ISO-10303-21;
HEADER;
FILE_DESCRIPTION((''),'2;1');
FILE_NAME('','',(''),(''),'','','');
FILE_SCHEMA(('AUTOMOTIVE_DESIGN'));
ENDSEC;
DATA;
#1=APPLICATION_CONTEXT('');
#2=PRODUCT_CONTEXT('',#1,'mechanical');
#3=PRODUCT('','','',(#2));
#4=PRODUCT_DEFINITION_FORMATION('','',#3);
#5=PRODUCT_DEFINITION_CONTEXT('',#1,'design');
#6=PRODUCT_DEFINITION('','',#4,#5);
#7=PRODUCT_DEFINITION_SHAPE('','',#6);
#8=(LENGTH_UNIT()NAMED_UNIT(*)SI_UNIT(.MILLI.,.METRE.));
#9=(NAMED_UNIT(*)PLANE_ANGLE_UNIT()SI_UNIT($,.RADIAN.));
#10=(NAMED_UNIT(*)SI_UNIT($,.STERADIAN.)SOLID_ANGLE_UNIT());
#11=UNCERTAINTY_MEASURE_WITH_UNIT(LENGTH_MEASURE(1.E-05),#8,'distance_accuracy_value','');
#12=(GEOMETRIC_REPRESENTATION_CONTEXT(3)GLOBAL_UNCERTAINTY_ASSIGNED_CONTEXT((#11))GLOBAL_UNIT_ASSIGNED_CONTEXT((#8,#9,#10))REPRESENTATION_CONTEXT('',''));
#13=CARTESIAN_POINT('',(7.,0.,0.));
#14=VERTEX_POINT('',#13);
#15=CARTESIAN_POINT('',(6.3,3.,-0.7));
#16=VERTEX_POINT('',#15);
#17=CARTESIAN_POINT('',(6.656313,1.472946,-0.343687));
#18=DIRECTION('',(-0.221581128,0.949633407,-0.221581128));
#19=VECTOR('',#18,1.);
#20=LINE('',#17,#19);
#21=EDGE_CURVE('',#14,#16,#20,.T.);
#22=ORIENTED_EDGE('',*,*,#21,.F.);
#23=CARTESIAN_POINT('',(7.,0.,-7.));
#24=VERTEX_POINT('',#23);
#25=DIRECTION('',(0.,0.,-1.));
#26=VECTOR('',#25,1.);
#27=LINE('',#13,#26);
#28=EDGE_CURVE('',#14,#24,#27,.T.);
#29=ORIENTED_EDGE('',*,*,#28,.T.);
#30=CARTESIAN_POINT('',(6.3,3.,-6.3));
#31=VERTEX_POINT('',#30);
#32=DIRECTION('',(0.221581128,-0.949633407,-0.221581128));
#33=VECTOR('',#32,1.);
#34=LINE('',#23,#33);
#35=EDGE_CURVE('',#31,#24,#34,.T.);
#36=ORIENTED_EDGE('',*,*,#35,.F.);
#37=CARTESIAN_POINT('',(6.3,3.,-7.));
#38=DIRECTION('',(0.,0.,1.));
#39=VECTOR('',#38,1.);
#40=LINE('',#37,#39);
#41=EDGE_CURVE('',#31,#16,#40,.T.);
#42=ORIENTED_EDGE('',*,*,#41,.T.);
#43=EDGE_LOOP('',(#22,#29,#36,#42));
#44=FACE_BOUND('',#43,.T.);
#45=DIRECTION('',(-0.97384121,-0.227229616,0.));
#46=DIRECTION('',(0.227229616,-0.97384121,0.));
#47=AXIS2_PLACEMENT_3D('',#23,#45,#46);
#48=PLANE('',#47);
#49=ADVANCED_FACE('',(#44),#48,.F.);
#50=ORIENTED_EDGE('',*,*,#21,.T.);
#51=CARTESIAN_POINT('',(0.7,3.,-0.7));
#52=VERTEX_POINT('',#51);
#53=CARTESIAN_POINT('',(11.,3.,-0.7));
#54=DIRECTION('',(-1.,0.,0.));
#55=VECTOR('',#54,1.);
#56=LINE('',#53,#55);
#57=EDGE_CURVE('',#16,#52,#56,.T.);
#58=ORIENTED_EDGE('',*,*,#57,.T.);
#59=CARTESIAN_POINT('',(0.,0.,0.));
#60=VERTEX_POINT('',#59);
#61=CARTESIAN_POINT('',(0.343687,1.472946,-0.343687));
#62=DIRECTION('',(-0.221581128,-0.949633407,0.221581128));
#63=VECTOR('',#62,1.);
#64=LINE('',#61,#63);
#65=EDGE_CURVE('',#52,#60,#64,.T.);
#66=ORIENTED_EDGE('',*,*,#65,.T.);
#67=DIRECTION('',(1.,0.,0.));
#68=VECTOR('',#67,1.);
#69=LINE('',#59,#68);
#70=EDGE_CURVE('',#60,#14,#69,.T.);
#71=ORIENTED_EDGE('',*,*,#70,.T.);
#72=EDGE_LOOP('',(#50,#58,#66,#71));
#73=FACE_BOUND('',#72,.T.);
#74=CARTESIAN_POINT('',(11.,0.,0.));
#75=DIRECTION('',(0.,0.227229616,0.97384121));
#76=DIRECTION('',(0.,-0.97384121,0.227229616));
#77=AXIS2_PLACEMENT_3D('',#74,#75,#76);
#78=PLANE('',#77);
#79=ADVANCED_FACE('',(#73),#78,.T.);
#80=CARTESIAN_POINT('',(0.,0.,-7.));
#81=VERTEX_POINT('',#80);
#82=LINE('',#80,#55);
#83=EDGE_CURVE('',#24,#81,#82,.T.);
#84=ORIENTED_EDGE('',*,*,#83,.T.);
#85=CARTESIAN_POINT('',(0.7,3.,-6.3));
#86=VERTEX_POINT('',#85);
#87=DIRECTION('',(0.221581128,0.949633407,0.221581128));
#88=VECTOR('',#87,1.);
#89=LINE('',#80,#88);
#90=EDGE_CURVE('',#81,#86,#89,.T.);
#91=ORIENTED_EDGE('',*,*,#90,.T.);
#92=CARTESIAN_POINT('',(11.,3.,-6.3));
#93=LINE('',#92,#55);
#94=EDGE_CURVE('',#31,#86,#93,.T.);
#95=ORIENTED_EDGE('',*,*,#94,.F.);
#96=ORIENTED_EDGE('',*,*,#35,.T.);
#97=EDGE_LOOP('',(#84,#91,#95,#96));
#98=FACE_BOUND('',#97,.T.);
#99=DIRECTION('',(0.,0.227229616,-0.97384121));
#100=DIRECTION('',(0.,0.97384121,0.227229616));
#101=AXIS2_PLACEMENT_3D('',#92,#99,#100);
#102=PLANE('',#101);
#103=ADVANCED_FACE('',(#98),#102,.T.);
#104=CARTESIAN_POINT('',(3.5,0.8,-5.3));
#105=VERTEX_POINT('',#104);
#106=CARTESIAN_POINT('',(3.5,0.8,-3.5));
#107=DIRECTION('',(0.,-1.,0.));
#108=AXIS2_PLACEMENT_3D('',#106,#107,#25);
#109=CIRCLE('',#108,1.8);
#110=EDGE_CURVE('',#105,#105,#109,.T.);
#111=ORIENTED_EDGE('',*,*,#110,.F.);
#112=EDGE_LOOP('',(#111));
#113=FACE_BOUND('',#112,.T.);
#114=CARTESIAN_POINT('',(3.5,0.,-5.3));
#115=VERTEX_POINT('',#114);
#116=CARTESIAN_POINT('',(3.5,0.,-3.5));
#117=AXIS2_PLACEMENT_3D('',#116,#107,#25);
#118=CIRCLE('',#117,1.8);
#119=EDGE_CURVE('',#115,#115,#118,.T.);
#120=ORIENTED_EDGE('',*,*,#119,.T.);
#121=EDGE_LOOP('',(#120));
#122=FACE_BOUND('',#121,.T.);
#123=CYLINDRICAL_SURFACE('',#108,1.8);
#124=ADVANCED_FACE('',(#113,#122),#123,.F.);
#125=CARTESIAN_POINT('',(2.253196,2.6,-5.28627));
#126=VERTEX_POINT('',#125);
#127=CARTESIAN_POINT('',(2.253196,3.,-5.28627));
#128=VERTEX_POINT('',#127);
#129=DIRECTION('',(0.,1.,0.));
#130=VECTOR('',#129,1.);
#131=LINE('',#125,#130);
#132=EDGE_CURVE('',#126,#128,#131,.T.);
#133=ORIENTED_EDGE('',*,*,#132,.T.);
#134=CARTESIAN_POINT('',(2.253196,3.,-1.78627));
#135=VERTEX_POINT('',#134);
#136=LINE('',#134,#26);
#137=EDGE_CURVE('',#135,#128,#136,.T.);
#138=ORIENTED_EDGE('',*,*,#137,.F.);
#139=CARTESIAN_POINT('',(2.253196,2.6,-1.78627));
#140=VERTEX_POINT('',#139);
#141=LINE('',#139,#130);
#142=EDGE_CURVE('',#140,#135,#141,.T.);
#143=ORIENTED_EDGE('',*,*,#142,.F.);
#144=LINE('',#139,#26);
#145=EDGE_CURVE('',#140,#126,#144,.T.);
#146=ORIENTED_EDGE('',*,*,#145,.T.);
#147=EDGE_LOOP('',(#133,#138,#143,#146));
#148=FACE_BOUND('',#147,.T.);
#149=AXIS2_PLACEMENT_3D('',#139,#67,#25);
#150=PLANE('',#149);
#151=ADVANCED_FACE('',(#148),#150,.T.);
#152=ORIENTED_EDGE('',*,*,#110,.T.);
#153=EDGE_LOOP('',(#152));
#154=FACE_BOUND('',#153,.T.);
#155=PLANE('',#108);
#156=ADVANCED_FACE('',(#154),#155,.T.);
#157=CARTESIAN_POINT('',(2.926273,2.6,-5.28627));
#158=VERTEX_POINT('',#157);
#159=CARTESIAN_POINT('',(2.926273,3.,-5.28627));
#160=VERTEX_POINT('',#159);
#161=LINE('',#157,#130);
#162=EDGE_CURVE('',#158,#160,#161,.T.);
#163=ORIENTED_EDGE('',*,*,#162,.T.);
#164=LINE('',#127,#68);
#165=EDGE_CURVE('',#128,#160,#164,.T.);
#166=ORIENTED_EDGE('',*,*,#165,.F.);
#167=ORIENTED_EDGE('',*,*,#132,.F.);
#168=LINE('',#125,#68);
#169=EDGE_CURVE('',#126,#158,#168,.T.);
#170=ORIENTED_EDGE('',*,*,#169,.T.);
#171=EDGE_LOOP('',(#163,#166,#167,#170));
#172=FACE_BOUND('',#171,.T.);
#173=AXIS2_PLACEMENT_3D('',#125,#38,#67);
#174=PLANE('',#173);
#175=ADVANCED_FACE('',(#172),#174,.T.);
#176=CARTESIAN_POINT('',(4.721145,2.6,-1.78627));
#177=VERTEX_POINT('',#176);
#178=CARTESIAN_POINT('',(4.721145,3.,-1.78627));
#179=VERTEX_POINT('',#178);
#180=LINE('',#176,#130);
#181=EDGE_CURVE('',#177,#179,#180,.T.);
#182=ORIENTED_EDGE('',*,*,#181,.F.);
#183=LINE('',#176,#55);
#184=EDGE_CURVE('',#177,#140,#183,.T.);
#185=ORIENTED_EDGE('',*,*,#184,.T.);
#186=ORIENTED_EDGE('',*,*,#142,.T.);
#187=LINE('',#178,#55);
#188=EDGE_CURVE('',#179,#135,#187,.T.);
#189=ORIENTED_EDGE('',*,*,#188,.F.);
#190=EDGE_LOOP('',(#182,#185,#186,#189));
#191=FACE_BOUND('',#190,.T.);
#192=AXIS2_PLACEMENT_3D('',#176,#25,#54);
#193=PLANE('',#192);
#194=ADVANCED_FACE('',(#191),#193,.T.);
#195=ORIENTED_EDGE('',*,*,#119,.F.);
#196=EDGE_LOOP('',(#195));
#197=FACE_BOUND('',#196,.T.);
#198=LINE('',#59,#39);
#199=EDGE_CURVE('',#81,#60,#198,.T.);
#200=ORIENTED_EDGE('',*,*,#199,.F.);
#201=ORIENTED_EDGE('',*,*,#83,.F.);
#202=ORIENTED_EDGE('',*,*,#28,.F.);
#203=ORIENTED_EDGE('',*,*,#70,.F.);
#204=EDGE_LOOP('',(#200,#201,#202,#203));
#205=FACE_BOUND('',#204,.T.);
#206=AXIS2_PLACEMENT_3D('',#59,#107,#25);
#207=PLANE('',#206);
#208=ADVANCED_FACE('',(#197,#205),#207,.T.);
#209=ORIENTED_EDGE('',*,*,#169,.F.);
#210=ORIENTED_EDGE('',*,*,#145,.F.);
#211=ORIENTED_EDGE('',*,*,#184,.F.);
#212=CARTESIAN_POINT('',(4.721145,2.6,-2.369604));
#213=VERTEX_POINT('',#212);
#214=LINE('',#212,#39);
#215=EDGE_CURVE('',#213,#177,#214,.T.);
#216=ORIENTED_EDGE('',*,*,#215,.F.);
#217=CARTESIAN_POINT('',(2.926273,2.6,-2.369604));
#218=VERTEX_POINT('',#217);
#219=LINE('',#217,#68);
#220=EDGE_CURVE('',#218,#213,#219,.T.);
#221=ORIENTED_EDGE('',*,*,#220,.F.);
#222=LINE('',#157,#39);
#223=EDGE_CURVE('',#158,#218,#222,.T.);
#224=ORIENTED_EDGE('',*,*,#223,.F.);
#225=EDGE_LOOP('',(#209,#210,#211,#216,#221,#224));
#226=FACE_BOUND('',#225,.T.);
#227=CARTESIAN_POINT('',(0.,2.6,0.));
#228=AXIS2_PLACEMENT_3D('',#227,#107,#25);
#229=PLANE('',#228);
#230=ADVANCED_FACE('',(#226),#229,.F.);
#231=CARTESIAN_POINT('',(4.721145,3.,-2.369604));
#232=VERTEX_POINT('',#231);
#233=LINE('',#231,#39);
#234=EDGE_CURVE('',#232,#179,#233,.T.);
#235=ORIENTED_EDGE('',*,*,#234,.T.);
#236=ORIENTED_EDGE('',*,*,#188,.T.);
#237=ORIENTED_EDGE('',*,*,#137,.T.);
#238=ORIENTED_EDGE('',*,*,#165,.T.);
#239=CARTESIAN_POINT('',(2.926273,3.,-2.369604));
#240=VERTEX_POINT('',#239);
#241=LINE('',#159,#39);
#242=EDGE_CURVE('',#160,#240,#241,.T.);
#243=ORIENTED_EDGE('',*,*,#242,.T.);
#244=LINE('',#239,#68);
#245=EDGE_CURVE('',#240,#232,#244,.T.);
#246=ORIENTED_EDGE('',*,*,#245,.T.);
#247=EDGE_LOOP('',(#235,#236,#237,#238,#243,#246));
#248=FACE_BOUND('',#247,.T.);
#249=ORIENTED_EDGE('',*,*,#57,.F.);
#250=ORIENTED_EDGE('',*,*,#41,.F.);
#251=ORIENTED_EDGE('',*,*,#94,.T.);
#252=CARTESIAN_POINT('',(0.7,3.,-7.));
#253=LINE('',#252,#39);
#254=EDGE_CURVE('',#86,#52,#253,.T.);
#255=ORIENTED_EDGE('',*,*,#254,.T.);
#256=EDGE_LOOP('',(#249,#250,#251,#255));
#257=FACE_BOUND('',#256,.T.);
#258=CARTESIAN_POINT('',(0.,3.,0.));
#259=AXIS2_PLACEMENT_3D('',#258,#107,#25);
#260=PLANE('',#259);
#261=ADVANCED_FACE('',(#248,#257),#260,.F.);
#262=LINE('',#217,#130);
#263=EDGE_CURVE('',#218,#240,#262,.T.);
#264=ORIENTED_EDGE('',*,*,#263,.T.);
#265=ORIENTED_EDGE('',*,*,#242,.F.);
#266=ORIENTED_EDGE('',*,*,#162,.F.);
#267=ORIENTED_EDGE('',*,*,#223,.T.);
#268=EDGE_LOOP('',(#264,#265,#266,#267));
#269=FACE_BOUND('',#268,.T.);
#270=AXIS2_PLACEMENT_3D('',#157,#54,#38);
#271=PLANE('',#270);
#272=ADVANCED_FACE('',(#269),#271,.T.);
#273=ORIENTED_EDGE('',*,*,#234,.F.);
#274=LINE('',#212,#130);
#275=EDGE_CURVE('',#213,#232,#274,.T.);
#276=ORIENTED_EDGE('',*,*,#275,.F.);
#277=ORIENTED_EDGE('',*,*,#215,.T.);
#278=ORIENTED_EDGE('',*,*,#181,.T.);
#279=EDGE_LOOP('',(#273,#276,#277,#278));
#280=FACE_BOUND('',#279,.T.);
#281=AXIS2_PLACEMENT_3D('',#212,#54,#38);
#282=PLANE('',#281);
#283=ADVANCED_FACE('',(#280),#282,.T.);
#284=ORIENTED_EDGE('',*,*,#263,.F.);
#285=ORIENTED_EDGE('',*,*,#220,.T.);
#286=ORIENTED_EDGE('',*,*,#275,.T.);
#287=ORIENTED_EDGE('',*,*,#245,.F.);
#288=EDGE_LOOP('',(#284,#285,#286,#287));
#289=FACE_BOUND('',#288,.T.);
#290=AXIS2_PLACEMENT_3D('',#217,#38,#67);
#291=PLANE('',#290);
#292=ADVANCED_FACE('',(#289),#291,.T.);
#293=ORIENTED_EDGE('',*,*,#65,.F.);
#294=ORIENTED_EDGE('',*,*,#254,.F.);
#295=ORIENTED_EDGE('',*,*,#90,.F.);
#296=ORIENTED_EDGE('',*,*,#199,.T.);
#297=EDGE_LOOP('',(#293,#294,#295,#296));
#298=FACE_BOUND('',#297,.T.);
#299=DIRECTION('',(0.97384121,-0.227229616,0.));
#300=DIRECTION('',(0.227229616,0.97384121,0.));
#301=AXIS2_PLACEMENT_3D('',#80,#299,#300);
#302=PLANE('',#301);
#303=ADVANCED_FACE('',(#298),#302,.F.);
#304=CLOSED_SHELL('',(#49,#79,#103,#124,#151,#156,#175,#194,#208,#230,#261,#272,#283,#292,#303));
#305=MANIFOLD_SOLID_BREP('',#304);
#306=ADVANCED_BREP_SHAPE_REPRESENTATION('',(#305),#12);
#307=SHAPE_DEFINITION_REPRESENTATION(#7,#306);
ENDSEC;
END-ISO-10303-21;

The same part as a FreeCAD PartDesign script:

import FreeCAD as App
import Part
import Sketcher

doc = App.newDocument("Part")
body = doc.addObject("PartDesign::Body", "Body")

# Sketch on XZ plane
sketch1 = body.newObject("Sketcher::SketchObject", "Sketch")
sketch1.AttachmentSupport = (doc.getObject("XZ_Plane"), [""])
sketch1.MapMode = "FlatFace"
sketch1.addGeometry(Part.LineSegment(App.Vector(0, -7, 0), App.Vector(0, 0, 0)), False)
sketch1.addGeometry(Part.LineSegment(App.Vector(0, 0, 0), App.Vector(7, 0, 0)), False)
sketch1.addGeometry(Part.LineSegment(App.Vector(7, 0, 0), App.Vector(7, -7, 0)), False)
sketch1.addGeometry(Part.LineSegment(App.Vector(7, -7, 0), App.Vector(0, -7, 0)), False)
sketch1.addConstraint(Sketcher.Constraint("Coincident", 0, 2, 1, 1))
sketch1.addConstraint(Sketcher.Constraint("Coincident", 1, 2, 2, 1))
sketch1.addConstraint(Sketcher.Constraint("Coincident", 2, 2, 3, 1))
sketch1.addConstraint(Sketcher.Constraint("Coincident", 3, 2, 0, 1))
sketch1.addConstraint(Sketcher.Constraint("Vertical", 0))
sketch1.addConstraint(Sketcher.Constraint("Horizontal", 1))
sketch1.addConstraint(Sketcher.Constraint("Vertical", 2))
sketch1.addConstraint(Sketcher.Constraint("Horizontal", 3))
sketch1.addConstraint(Sketcher.Constraint("Coincident", 0, 2, -1, 1))
sketch1.addConstraint(Sketcher.Constraint("Equal", 3, 0))
sketch1.addConstraint(Sketcher.Constraint("DistanceX", 1, 1, 1, 2, 7.0))
pad1 = body.newObject("PartDesign::Pad", "Pad")
pad1.Profile = sketch1
pad1.Length = 3
pad1.Reversed = True

# Sketch on XY plane
sketch2 = body.newObject("Sketcher::SketchObject", "Sketch001")
sketch2.AttachmentSupport = (doc.getObject("XY_Plane"), [""])
sketch2.MapMode = "FlatFace"
sketch2.addGeometry(Part.LineSegment(App.Vector(0, 0, 0), App.Vector(0.7, 3, 0)), False)
sketch2.addGeometry(Part.LineSegment(App.Vector(0.7, 3, 0), App.Vector(0, 3, 0)), False)
sketch2.addGeometry(Part.LineSegment(App.Vector(0, 3, 0), App.Vector(0, 0, 0)), False)
sketch2.addGeometry(Part.LineSegment(App.Vector(6.3, 3, 0), App.Vector(7, 0, 0)), False)
sketch2.addGeometry(Part.LineSegment(App.Vector(7, 0, 0), App.Vector(7, 3, 0)), False)
sketch2.addGeometry(Part.LineSegment(App.Vector(7, 3, 0), App.Vector(6.3, 3, 0)), False)
sketch2.addConstraint(Sketcher.Constraint("Coincident", 0, 2, 1, 1))
sketch2.addConstraint(Sketcher.Constraint("Coincident", 1, 2, 2, 1))
sketch2.addConstraint(Sketcher.Constraint("Coincident", 2, 2, 0, 1))
sketch2.addConstraint(Sketcher.Constraint("Coincident", 3, 2, 4, 1))
sketch2.addConstraint(Sketcher.Constraint("Coincident", 4, 2, 5, 1))
sketch2.addConstraint(Sketcher.Constraint("Coincident", 5, 2, 3, 1))
sketch2.addConstraint(Sketcher.Constraint("Horizontal", 1))
sketch2.addConstraint(Sketcher.Constraint("Vertical", 2))
sketch2.addConstraint(Sketcher.Constraint("Vertical", 4))
sketch2.addConstraint(Sketcher.Constraint("Horizontal", 5))
sketch2.addConstraint(Sketcher.Constraint("Coincident", 2, 2, -1, 1))
sketch2.addConstraint(Sketcher.Constraint("PointOnObject", 3, 2, -1))
sketch2.addConstraint(Sketcher.Constraint("Horizontal", 1, 2, 4, 2))
sketch2.addConstraint(Sketcher.Constraint("Equal", 1, 5))
sketch2.addConstraint(Sketcher.Constraint("DistanceY", 2, 2, 2, 1, 3.0))
sketch2.addConstraint(Sketcher.Constraint("DistanceX", 1, 2, 1, 1, 0.7))
sketch2.addConstraint(Sketcher.Constraint("DistanceX", -1, 1, 3, 2, 7.0))
pocket1 = body.newObject("PartDesign::Pocket", "Pocket")
pocket1.Profile = sketch2
pocket1.Length = 7

# Sketch on YZ plane
sketch3 = body.newObject("Sketcher::SketchObject", "Sketch002")
sketch3.AttachmentSupport = (doc.getObject("YZ_Plane"), [""])
sketch3.MapMode = "FlatFace"
sketch3.addGeometry(Part.LineSegment(App.Vector(0, 0, 0), App.Vector(3, -0.7, 0)), False)
sketch3.addGeometry(Part.LineSegment(App.Vector(3, -0.7, 0), App.Vector(3, 0, 0)), False)
sketch3.addGeometry(Part.LineSegment(App.Vector(3, 0, 0), App.Vector(0, 0, 0)), False)
sketch3.addGeometry(Part.LineSegment(App.Vector(3, -7, 0), App.Vector(3, -6.3, 0)), False)
sketch3.addGeometry(Part.LineSegment(App.Vector(3, -6.3, 0), App.Vector(0, -7, 0)), False)
sketch3.addGeometry(Part.LineSegment(App.Vector(0, -7, 0), App.Vector(3, -7, 0)), False)
sketch3.addConstraint(Sketcher.Constraint("Coincident", 0, 2, 1, 1))
sketch3.addConstraint(Sketcher.Constraint("Coincident", 1, 2, 2, 1))
sketch3.addConstraint(Sketcher.Constraint("Coincident", 2, 2, 0, 1))
sketch3.addConstraint(Sketcher.Constraint("Coincident", 3, 2, 4, 1))
sketch3.addConstraint(Sketcher.Constraint("Coincident", 4, 2, 5, 1))
sketch3.addConstraint(Sketcher.Constraint("Coincident", 5, 2, 3, 1))
sketch3.addConstraint(Sketcher.Constraint("Vertical", 1))
sketch3.addConstraint(Sketcher.Constraint("Horizontal", 2))
sketch3.addConstraint(Sketcher.Constraint("Vertical", 3))
sketch3.addConstraint(Sketcher.Constraint("Horizontal", 5))
sketch3.addConstraint(Sketcher.Constraint("Coincident", 2, 2, -1, 1))
sketch3.addConstraint(Sketcher.Constraint("PointOnObject", 4, 2, -2))
sketch3.addConstraint(Sketcher.Constraint("Vertical", 1, 2, 3, 2))
sketch3.addConstraint(Sketcher.Constraint("Equal", 1, 3))
sketch3.addConstraint(Sketcher.Constraint("DistanceX", 2, 2, 2, 1, 3.0))
sketch3.addConstraint(Sketcher.Constraint("DistanceY", 1, 1, 1, 2, 0.7))
sketch3.addConstraint(Sketcher.Constraint("DistanceY", 4, 2, -1, 1, 7.0))
pocket2 = body.newObject("PartDesign::Pocket", "Pocket001")
pocket2.Profile = sketch3
pocket2.Length = 11
pocket2.Reversed = True

# Sketch on XZ plane
sketch4 = body.newObject("Sketcher::SketchObject", "Sketch003")
sketch4.AttachmentSupport = (doc.getObject("XZ_Plane"), [""])
sketch4.MapMode = "FlatFace"
sketch4.addGeometry(Part.Circle(App.Vector(3.5, -3.5, 0), App.Vector(0, 0, 1), 1.8), False)
sketch4.addConstraint(Sketcher.Constraint("Diameter", 0, 3.6))
sketch4.addConstraint(Sketcher.Constraint("DistanceX", -1, 1, 0, 3, 3.5))
sketch4.addConstraint(Sketcher.Constraint("DistanceY", 0, 3, -1, 1, 3.5))
pocket3 = body.newObject("PartDesign::Pocket", "Pocket002")
pocket3.Profile = sketch4
pocket3.Length = 0.8

# Sketch on XZ plane
sketch5 = body.newObject("Sketcher::SketchObject", "Sketch004")
sketch5.AttachmentSupport = (doc.getObject("XZ_Plane"), [""])
sketch5.MapMode = "FlatFace"
sketch5.AttachmentOffset = App.Placement(App.Vector(0, 0, -3), App.Rotation())
sketch5.addGeometry(Part.LineSegment(App.Vector(2.3, -5.3, 0), App.Vector(2.3, -1.8, 0)), False)
sketch5.addGeometry(Part.LineSegment(App.Vector(2.3, -1.8, 0), App.Vector(4.7, -1.8, 0)), False)
sketch5.addGeometry(Part.LineSegment(App.Vector(4.7, -1.8, 0), App.Vector(4.7, -2.4, 0)), False)
sketch5.addGeometry(Part.LineSegment(App.Vector(4.7, -2.4, 0), App.Vector(2.9, -2.4, 0)), False)
sketch5.addGeometry(Part.LineSegment(App.Vector(2.9, -2.4, 0), App.Vector(2.9, -5.3, 0)), False)
sketch5.addGeometry(Part.LineSegment(App.Vector(2.9, -5.3, 0), App.Vector(2.3, -5.3, 0)), False)
sketch5.addConstraint(Sketcher.Constraint("Coincident", 0, 2, 1, 1))
sketch5.addConstraint(Sketcher.Constraint("Coincident", 1, 2, 2, 1))
sketch5.addConstraint(Sketcher.Constraint("Coincident", 2, 2, 3, 1))
sketch5.addConstraint(Sketcher.Constraint("Coincident", 3, 2, 4, 1))
sketch5.addConstraint(Sketcher.Constraint("Coincident", 4, 2, 5, 1))
sketch5.addConstraint(Sketcher.Constraint("Coincident", 5, 2, 0, 1))
sketch5.addConstraint(Sketcher.Constraint("Vertical", 0))
sketch5.addConstraint(Sketcher.Constraint("Horizontal", 1))
sketch5.addConstraint(Sketcher.Constraint("Vertical", 2))
sketch5.addConstraint(Sketcher.Constraint("Horizontal", 3))
sketch5.addConstraint(Sketcher.Constraint("Vertical", 4))
sketch5.addConstraint(Sketcher.Constraint("Horizontal", 5))
sketch5.addConstraint(Sketcher.Constraint("DistanceY", 0, 1, 0, 2, 3.5))
sketch5.addConstraint(Sketcher.Constraint("DistanceX", 1, 1, 1, 2, 2.467949))
sketch5.addConstraint(Sketcher.Constraint("DistanceX", 3, 2, 3, 1, 1.794872))
sketch5.addConstraint(Sketcher.Constraint("DistanceY", 2, 2, 2, 1, 0.583333))
sketch5.addConstraint(Sketcher.Constraint("DistanceY", 0, 2, -1, 1, 1.78627))
sketch5.addConstraint(Sketcher.Constraint("DistanceX", -1, 1, 0, 2, 2.253196))
pocket4 = body.newObject("PartDesign::Pocket", "Pocket003")
pocket4.Profile = sketch5
pocket4.Length = 0.4
pocket4.Reversed = True

doc.recompute()
